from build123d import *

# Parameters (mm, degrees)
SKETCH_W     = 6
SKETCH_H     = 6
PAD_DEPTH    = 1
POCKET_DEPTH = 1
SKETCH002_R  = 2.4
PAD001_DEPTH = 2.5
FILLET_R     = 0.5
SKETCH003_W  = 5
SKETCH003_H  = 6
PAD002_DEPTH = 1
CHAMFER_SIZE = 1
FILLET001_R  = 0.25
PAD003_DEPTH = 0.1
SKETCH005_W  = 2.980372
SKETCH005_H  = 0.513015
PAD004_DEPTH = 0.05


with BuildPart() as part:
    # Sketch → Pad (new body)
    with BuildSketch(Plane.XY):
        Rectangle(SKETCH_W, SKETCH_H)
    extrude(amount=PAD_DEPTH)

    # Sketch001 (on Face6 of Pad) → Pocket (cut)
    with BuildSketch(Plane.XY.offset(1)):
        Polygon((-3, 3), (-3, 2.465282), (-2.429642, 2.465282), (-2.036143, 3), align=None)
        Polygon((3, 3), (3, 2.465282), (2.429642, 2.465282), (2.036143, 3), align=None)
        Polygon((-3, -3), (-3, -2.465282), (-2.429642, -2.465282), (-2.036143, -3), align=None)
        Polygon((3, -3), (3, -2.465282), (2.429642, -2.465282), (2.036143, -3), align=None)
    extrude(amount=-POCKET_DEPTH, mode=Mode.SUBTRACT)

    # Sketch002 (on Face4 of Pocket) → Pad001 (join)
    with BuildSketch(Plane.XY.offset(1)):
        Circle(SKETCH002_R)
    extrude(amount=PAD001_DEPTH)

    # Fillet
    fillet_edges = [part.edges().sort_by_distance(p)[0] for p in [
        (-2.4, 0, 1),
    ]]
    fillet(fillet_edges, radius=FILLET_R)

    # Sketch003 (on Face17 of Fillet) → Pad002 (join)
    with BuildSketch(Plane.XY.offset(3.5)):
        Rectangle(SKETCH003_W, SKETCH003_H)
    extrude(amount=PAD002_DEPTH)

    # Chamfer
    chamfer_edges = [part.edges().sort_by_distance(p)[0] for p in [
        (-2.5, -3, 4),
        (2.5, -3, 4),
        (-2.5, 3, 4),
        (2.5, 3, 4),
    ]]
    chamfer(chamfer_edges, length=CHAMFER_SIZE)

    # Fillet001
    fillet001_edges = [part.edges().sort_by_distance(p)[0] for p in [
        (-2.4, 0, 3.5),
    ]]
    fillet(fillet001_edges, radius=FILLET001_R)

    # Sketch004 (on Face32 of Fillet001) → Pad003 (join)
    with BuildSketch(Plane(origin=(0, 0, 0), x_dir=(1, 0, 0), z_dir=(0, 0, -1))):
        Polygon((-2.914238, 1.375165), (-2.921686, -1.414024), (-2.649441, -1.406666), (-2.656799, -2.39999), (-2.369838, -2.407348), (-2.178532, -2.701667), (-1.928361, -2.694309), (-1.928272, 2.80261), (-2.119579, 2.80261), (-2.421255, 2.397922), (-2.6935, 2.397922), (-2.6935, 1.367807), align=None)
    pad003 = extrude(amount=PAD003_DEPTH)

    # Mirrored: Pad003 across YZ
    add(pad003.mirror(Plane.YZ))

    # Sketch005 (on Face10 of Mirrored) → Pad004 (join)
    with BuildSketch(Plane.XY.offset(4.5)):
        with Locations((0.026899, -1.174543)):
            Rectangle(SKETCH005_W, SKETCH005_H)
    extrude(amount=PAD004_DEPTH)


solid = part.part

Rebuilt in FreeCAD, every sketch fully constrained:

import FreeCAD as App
import Part
import Sketcher


def edges_at(feature, points):
    """Names of the edges that pass closest to the given points."""
    edges = feature.Shape.Edges
    near = lambda p: min(range(len(edges)), key=lambda i: edges[i].distToShape(Part.Vertex(*p))[0])
    return sorted({f"Edge{near(p) + 1}" for p in points})


def add_polygon(sketch, points):
    """Adds a closed chain of lines whose ends are joined by coincident constraints."""
    first, n = sketch.GeometryCount, len(points)
    for a, b in zip(points, points[1:] + points[:1]):
        sketch.addGeometry(Part.LineSegment(App.Vector(*a, 0), App.Vector(*b, 0)), False)
    for i in range(n):
        sketch.addConstraint(Sketcher.Constraint("Coincident", first + i, 2, first + (i + 1) % n, 1))

doc = App.newDocument("Part")
body = doc.addObject("PartDesign::Body", "Body")

# Sketch on XY plane
sketch1 = doc.addObject("Sketcher::SketchObject", "Sketch")
body.addObject(sketch1)
sketch1.AttachmentSupport = (doc.XY_Plane, [""])
sketch1.MapMode = "FlatFace"
add_polygon(sketch1, [(-3, 3), (-3, -3), (3, -3), (3, 3)])  # lines 0-3
sketch1.addConstraint(Sketcher.Constraint("Vertical", 0))
sketch1.addConstraint(Sketcher.Constraint("Horizontal", 1))
sketch1.addConstraint(Sketcher.Constraint("Vertical", 2))
sketch1.addConstraint(Sketcher.Constraint("Horizontal", 3))
sketch1.addConstraint(Sketcher.Constraint("Symmetric", 0, 2, 2, 2, -1, 1))
sketch1.addConstraint(Sketcher.Constraint("Equal", 3, 0))
sketch1.addConstraint(Sketcher.Constraint("DistanceX", 1, 1, 1, 2, 6.0))
pad1 = doc.addObject("PartDesign::Pad", "Pad")
body.addObject(pad1)
pad1.Profile = sketch1
pad1.Length = 1

# Sketch on XY plane
sketch2 = doc.addObject("Sketcher::SketchObject", "Sketch001")
body.addObject(sketch2)
sketch2.AttachmentSupport = (doc.XY_Plane, [""])
sketch2.MapMode = "FlatFace"
sketch2.AttachmentOffset = App.Placement(App.Vector(0, 0, 1), App.Rotation())
add_polygon(sketch2, [(-3, 3), (-3, 2.5), (-2.4, 2.5), (-2, 3)])  # lines 0-3
add_polygon(sketch2, [(3, 2.5), (3, 3), (2, 3), (2.4, 2.5)])  # lines 4-7
add_polygon(sketch2, [(-3, -2.5), (-3, -3), (-2, -3), (-2.4, -2.5)])  # lines 8-11
add_polygon(sketch2, [(3, -3), (3, -2.5), (2.4, -2.5), (2, -3)])  # lines 12-15
sketch2.addConstraint(Sketcher.Constraint("Vertical", 0))
sketch2.addConstraint(Sketcher.Constraint("Horizontal", 1))
sketch2.addConstraint(Sketcher.Constraint("Horizontal", 3))
sketch2.addConstraint(Sketcher.Constraint("Vertical", 4))
sketch2.addConstraint(Sketcher.Constraint("Horizontal", 5))
sketch2.addConstraint(Sketcher.Constraint("Horizontal", 7))
sketch2.addConstraint(Sketcher.Constraint("Vertical", 8))
sketch2.addConstraint(Sketcher.Constraint("Horizontal", 9))
sketch2.addConstraint(Sketcher.Constraint("Horizontal", 11))
sketch2.addConstraint(Sketcher.Constraint("Vertical", 12))
sketch2.addConstraint(Sketcher.Constraint("Horizontal", 13))
sketch2.addConstraint(Sketcher.Constraint("Horizontal", 15))
sketch2.addConstraint(Sketcher.Constraint("Symmetric", 4, 2, 8, 2, -1, 1))
sketch2.addConstraint(Sketcher.Constraint("Symmetric", 6, 2, 10, 2, -1, 1))
sketch2.addConstraint(Sketcher.Constraint("Symmetric", 0, 2, 12, 2, -1, 1))
sketch2.addConstraint(Sketcher.Constraint("Symmetric", 2, 2, 14, 2, -1, 1))
sketch2.addConstraint(Sketcher.Constraint("Symmetric", 3, 2, 4, 2, -2))
sketch2.addConstraint(Sketcher.Constraint("Symmetric", 1, 2, 6, 2, -2))
sketch2.addConstraint(Sketcher.Constraint("Parallel", 6, 10))
sketch2.addConstraint(Sketcher.Constraint("Parallel", 2, 14))
sketch2.addConstraint(Sketcher.Constraint("Vertical", 2, 2, 9, 2))
sketch2.addConstraint(Sketcher.Constraint("DistanceX", 0, 2, -1, 1, 3.0))
sketch2.addConstraint(Sketcher.Constraint("DistanceY", -1, 1, 2, 2, 3.0))
sketch2.addConstraint(Sketcher.Constraint("Distance", 2, 0.663901))
sketch2.addConstraint(Sketcher.Constraint("DistanceX", 1, 1, 1, 2, 0.570358))
sketch2.addConstraint(Sketcher.Constraint("DistanceX", 1, 2, 2, 2, 0.393499))
pocket1 = doc.addObject("PartDesign::Pocket", "Pocket")
body.addObject(pocket1)
pocket1.Profile = sketch2
pocket1.Length = 1

# Sketch on XY plane
sketch3 = doc.addObject("Sketcher::SketchObject", "Sketch002")
body.addObject(sketch3)
sketch3.AttachmentSupport = (doc.XY_Plane, [""])
sketch3.MapMode = "FlatFace"
sketch3.AttachmentOffset = App.Placement(App.Vector(0, 0, 1), App.Rotation())
sketch3.addGeometry(Part.Circle(App.Vector(0, 0, 0), App.Vector(0, 0, 1), 2.4), False)
sketch3.addConstraint(Sketcher.Constraint("Coincident", 0, 3, -1, 1))
sketch3.addConstraint(Sketcher.Constraint("Diameter", 0, 4.8))
pad2 = doc.addObject("PartDesign::Pad", "Pad001")
body.addObject(pad2)
pad2.Profile = sketch3
pad2.Length = 2.5
doc.recompute()

fillet = doc.addObject("PartDesign::Fillet", "Fillet")
body.addObject(fillet)
fillet.Base = (pad2, edges_at(pad2, [(-2.4, 0, 1)]))
fillet.Radius = 0.5

# Sketch on XY plane
sketch4 = doc.addObject("Sketcher::SketchObject", "Sketch003")
body.addObject(sketch4)
sketch4.AttachmentSupport = (doc.XY_Plane, [""])
sketch4.MapMode = "FlatFace"
sketch4.AttachmentOffset = App.Placement(App.Vector(0, 0, 3.5), App.Rotation())
add_polygon(sketch4, [(-2, 3), (-2, -3), (2, -3), (2, 3)])  # lines 0-3
sketch4.addConstraint(Sketcher.Constraint("Vertical", 0))
sketch4.addConstraint(Sketcher.Constraint("Horizontal", 1))
sketch4.addConstraint(Sketcher.Constraint("Vertical", 2))
sketch4.addConstraint(Sketcher.Constraint("Horizontal", 3))
sketch4.addConstraint(Sketcher.Constraint("Symmetric", 0, 2, 2, 2, -1, 1))
sketch4.addConstraint(Sketcher.Constraint("DistanceX", 1, 1, 1, 2, 5.0))
sketch4.addConstraint(Sketcher.Constraint("DistanceY", 0, 2, 0, 1, 6.0))
pad3 = doc.addObject("PartDesign::Pad", "Pad002")
body.addObject(pad3)
pad3.Profile = sketch4
pad3.Length = 1
doc.recompute()

chamfer = doc.addObject("PartDesign::Chamfer", "Chamfer")
body.addObject(chamfer)
chamfer.Base = (pad3, edges_at(pad3, [
    (-2.5, -3, 4),
    (2.5, -3, 4),
    (-2.5, 3, 4),
    (2.5, 3, 4),
]))
chamfer.Size = 1
doc.recompute()

fillet2 = doc.addObject("PartDesign::Fillet", "Fillet001")
body.addObject(fillet2)
fillet2.Base = (chamfer, edges_at(chamfer, [(-2.4, 0, 3.5)]))
fillet2.Radius = 0.25

# Sketch on XY plane
sketch5 = doc.addObject("Sketcher::SketchObject", "Sketch004")
body.addObject(sketch5)
sketch5.AttachmentSupport = (doc.XY_Plane, [""])
sketch5.MapMode = "FlatFace"
add_polygon(sketch5, [(-2.91, -1.38), (-2.92, 1.41), (-2.65, 1.41), (-2.66, 2.4), (-2.37, 2.41), (-2.18, 2.7), (-1.93, 2.69), (-1.93, -2.8), (-2.12, -2.8), (-2.42, -2.4), (-2.69, -2.4), (-2.69, -1.37)])  # lines 0-11
sketch5.addConstraint(Sketcher.Constraint("Horizontal", 7))
sketch5.addConstraint(Sketcher.Constraint("Horizontal", 9))
sketch5.addConstraint(Sketcher.Constraint("Vertical", 10))
sketch5.addConstraint(Sketcher.Constraint("DistanceY", 1, 2, 4, 2, 1.295001))
sketch5.addConstraint(Sketcher.Constraint("Distance", 0, 2.789199))
sketch5.addConstraint(Sketcher.Constraint("DistanceX", 2, 2, -1, 1, 2.656799))
sketch5.addConstraint(Sketcher.Constraint("DistanceX", 9, 2, -1, 1, 2.6935))
sketch5.addConstraint(Sketcher.Constraint("DistanceY", 6, 2, 2, 2, 5.2026))
sketch5.addConstraint(Sketcher.Constraint("Distance", 2, 0.993351))
sketch5.addConstraint(Sketcher.Constraint("Distance", 4, 0.351029))
sketch5.addConstraint(Sketcher.Constraint("Distance", 5, 0.250279))
sketch5.addConstraint(Sketcher.Constraint("Distance", 6, 5.496919))
sketch5.addConstraint(Sketcher.Constraint("Distance", 8, 0.504758))
sketch5.addConstraint(Sketcher.Constraint("Distance", 11, 0.220861))
sketch5.addConstraint(Sketcher.Constraint("DistanceX", 7, 2, 7, 1, 0.191307))
sketch5.addConstraint(Sketcher.Constraint("DistanceX", 9, 2, 9, 1, 0.272245))
sketch5.addConstraint(Sketcher.Constraint("DistanceY", 10, 1, 10, 2, 1.030115))
sketch5.addConstraint(Sketcher.Constraint("DistanceX", 1, 2, -1, 1, 2.649441))
sketch5.addConstraint(Sketcher.Constraint("DistanceY", -1, 1, 2, 2, 2.39999))
sketch5.addConstraint(Sketcher.Constraint("DistanceX", 3, 2, -1, 1, 2.369838))
sketch5.addConstraint(Sketcher.Constraint("DistanceX", 5, 2, -1, 1, 1.928361))
sketch5.addConstraint(Sketcher.Constraint("DistanceX", 7, 2, -1, 1, 2.119579))
sketch5.addConstraint(Sketcher.Constraint("DistanceX", 11, 2, -1, 1, 2.914238))
sketch5.addConstraint(Sketcher.Constraint("DistanceX", 0, 2, 8, 2, 0.500431))
pad4 = doc.addObject("PartDesign::Pad", "Pad003")
body.addObject(pad4)
pad4.Profile = sketch5
pad4.Length = 0.1
pad4.Reversed = True
doc.recompute()

mirrored = doc.addObject("PartDesign::Mirrored", "Mirrored")
body.addObject(mirrored)
mirrored.Originals = [pad4]
mirrored.MirrorPlane = (doc.YZ_Plane, [""])
body.Tip = mirrored

# Sketch on XY plane
sketch6 = doc.addObject("Sketcher::SketchObject", "Sketch005")
body.addObject(sketch6)
sketch6.AttachmentSupport = (doc.XY_Plane, [""])
sketch6.MapMode = "FlatFace"
sketch6.AttachmentOffset = App.Placement(App.Vector(0, 0, 4.5), App.Rotation())
add_polygon(sketch6, [(-1.5, -0.9), (-1.5, -1.4), (1.5, -1.4), (1.5, -0.9)])  # lines 0-3
sketch6.addConstraint(Sketcher.Constraint("Vertical", 0))
sketch6.addConstraint(Sketcher.Constraint("Horizontal", 1))
sketch6.addConstraint(Sketcher.Constraint("Vertical", 2))
sketch6.addConstraint(Sketcher.Constraint("Horizontal", 3))
sketch6.addConstraint(Sketcher.Constraint("DistanceX", 1, 1, 1, 2, 2.980372))
sketch6.addConstraint(Sketcher.Constraint("DistanceY", 0, 2, 0, 1, 0.513015))
sketch6.addConstraint(Sketcher.Constraint("DistanceY", 0, 2, -1, 1, 1.431051))
sketch6.addConstraint(Sketcher.Constraint("DistanceX", 0, 2, -1, 1, 1.463287))
pad5 = doc.addObject("PartDesign::Pad", "Pad004")
body.addObject(pad5)
pad5.Profile = sketch6
pad5.Length = 0.05

doc.recompute()
